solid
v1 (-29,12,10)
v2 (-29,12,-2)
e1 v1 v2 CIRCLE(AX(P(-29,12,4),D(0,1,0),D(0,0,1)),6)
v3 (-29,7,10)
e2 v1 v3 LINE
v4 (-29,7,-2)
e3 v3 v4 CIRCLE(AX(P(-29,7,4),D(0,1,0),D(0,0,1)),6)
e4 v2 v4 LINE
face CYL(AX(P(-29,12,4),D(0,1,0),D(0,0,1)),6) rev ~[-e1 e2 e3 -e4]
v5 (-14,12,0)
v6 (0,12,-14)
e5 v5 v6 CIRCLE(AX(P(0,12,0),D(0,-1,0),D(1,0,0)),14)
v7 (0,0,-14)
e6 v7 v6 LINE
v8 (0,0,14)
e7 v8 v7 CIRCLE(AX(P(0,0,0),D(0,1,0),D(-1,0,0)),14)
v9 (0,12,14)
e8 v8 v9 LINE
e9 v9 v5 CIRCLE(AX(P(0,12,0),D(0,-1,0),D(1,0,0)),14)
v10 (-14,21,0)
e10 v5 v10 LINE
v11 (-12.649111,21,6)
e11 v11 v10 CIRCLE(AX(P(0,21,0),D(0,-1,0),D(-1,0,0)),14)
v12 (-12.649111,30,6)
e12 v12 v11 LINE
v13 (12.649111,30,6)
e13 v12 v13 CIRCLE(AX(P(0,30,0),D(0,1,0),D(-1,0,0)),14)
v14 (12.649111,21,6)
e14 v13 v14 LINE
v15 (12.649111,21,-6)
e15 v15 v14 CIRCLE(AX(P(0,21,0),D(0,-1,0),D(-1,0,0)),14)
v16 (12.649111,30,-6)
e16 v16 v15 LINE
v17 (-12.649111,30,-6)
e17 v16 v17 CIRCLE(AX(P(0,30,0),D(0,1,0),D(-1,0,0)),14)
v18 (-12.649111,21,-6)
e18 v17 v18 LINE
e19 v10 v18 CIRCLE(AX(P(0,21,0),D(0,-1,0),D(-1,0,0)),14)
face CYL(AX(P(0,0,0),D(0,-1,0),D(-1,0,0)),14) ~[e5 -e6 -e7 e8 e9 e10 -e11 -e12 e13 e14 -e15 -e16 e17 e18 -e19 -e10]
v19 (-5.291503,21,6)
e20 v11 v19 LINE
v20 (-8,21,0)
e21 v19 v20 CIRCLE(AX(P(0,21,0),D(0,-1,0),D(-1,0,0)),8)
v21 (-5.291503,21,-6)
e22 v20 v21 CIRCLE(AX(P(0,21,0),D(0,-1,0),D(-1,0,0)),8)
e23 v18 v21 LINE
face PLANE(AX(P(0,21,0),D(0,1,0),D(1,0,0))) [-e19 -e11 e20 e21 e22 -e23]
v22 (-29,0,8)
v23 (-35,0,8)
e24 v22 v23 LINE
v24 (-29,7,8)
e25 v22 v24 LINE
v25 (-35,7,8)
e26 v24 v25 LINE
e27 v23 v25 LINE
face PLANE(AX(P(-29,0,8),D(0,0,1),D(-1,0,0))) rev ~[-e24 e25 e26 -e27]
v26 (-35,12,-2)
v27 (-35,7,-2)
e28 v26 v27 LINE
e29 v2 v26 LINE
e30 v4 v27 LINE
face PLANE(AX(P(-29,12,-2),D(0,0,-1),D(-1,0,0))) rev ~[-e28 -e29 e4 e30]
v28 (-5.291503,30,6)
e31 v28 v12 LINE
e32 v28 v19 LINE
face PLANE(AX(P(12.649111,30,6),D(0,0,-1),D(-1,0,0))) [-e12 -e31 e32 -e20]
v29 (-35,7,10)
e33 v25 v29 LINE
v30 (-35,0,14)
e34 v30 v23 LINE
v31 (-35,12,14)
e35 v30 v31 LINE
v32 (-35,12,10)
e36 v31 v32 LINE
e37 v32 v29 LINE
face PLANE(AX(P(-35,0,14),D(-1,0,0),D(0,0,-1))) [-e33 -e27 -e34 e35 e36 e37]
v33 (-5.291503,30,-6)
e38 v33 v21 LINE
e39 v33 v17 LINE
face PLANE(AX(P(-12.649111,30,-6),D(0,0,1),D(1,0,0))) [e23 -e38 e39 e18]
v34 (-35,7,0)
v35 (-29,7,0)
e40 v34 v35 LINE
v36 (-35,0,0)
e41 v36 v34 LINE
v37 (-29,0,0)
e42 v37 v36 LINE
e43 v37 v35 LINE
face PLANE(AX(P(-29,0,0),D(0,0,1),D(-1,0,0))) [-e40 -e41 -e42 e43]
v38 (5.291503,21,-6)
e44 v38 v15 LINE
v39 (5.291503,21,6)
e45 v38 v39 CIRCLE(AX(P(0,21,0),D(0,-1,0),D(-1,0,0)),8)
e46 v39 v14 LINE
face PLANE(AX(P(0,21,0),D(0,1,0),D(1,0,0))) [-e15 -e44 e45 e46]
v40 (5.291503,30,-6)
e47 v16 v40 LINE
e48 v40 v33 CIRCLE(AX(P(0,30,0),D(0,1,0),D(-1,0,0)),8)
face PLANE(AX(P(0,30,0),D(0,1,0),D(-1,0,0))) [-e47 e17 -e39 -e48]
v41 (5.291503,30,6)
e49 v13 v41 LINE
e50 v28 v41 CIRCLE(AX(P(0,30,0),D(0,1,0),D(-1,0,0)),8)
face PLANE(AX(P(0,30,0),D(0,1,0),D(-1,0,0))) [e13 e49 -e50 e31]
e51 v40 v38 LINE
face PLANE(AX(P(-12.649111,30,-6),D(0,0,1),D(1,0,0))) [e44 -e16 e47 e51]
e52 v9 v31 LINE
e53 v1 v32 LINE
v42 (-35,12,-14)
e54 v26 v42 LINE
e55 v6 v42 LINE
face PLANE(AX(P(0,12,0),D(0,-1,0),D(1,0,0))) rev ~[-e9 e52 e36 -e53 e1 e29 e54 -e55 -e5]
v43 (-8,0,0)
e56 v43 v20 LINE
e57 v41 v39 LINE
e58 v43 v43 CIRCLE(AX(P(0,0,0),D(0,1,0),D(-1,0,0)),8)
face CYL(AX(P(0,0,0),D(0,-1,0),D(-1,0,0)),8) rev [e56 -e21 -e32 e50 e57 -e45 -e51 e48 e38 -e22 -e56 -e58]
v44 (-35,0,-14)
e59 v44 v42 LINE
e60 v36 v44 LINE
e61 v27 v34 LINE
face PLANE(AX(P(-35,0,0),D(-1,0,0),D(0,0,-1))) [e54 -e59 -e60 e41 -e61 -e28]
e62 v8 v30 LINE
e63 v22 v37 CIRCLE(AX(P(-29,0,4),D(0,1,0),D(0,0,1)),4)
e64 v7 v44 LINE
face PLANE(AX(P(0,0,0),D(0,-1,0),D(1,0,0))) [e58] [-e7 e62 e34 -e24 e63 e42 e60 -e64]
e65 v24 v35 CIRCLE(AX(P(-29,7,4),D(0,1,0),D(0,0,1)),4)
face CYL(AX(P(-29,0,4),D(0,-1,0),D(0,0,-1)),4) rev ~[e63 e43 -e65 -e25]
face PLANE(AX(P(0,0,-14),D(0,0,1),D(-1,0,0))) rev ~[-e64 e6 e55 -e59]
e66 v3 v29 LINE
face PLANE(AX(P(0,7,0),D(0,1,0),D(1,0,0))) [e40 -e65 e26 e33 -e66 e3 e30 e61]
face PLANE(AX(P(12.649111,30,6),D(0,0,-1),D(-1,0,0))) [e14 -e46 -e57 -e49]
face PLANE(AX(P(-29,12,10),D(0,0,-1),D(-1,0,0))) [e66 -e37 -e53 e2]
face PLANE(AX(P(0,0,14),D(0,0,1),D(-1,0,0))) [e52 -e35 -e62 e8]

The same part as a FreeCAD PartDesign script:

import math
import FreeCAD as App
import Part
import Sketcher

V = App.Vector


def add_polygon(sketch, points):
    """Adds a closed chain of lines whose ends are joined by coincident constraints."""
    first, n = sketch.GeometryCount, len(points)
    for a, b in zip(points, points[1:] + points[:1]):
        sketch.addGeometry(Part.LineSegment(App.Vector(*a, 0), App.Vector(*b, 0)), False)
    for i in range(n):
        sketch.addConstraint(Sketcher.Constraint("Coincident", first + i, 2, first + (i + 1) % n, 1))

doc = App.newDocument("Part")
params = doc.addObject("Spreadsheet::Sheet", "Params")
for row, (alias, value) in enumerate([
    ("sketch1_diameter", "28 mm"),
    ("sketch1_diameter2", "16 mm"),
    ("pad1_length", "30 mm"),
    ("sketch2_height", "12 mm"),
    ("pocket1_length", "9 mm"),
    ("sketch3_radius", "4 mm"),
    ("sketch3_width", "35 mm"),
    ("sketch3_width2", "6 mm"),
    ("pad2_length", "12 mm"),
    ("sketch4_radius", "6 mm"),
    ("sketch4_radius2", "4 mm"),
    ("sketch4_width", "6 mm"),
    ("pocket2_length", "5 mm"),
], start=1):
    params.set(f"A{row}", alias)
    params.set(f"B{row}", "=" + value)
    params.setAlias(f"B{row}", alias)

body = doc.addObject("PartDesign::Body", "Body")

# Sketch on XZ plane
sketch1 = body.newObject("Sketcher::SketchObject", "Sketch")
sketch1.AttachmentSupport = (doc.getObject("XZ_Plane"), [""])
sketch1.MapMode = "FlatFace"
sketch1.addGeometry(Part.Circle(V(0, 0, 0), V(0, 0, 1), 14), False)
sketch1.addGeometry(Part.Circle(V(0, 0, 0), V(0, 0, 1), 8), False)
sketch1.addConstraint(Sketcher.Constraint("Coincident", 0, 3, -1, 1))
sketch1.addConstraint(Sketcher.Constraint("Coincident", 1, 3, -1, 1))
sketch1.addConstraint(Sketcher.Constraint("Diameter", 0, 28.0))
sketch1.addConstraint(Sketcher.Constraint("Diameter", 1, 16.0))
sketch1.setExpression("Constraints[2]", "Params.sketch1_diameter")
sketch1.setExpression("Constraints[3]", "Params.sketch1_diameter2")
pad1 = body.newObject("PartDesign::Pad", "Pad")
pad1.Profile = sketch1
pad1.setExpression("Length", "Params.pad1_length")
pad1.Reversed = True

# Sketch on XZ plane
sketch2 = body.newObject("Sketcher::SketchObject", "Sketch001")
sketch2.AttachmentSupport = (doc.getObject("XZ_Plane"), [""])
sketch2.MapMode = "FlatFace"
sketch2.AttachmentOffset = App.Placement(V(0, 0, -30), App.Rotation())
add_polygon(sketch2, [(18.1173, 6), (18.1173, -6), (-18.1173, -6), (-18.1173, 6)])  # lines 0-3
sketch2.addConstraint(Sketcher.Constraint("Vertical", 0))
sketch2.addConstraint(Sketcher.Constraint("Horizontal", 1))
sketch2.addConstraint(Sketcher.Constraint("Vertical", 2))
sketch2.addConstraint(Sketcher.Constraint("Horizontal", 3))
sketch2.addConstraint(Sketcher.Constraint("Symmetric", 0, 2, 2, 2, -1, 1))
sketch2.addConstraint(Sketcher.Constraint("DistanceY", 0, 2, 0, 1, 12.0))
sketch2.addConstraint(Sketcher.Constraint("DistanceX", 1, 2, 1, 1, 36.2346))
sketch2.setExpression("Constraints[9]", "Params.sketch2_height")
pocket1 = body.newObject("PartDesign::Pocket", "Pocket")
pocket1.Profile = sketch2
pocket1.setExpression("Length", "Params.pocket1_length")
pocket1.Reversed = True

# Sketch on XZ plane
sketch3 = body.newObject("Sketcher::SketchObject", "Sketch002")
sketch3.AttachmentSupport = (doc.getObject("XZ_Plane"), [""])
sketch3.MapMode = "FlatFace"
sketch3.addGeometry(Part.ArcOfCircle(Part.Circle(V(0, 0, 0), V(0, 0, 1), 14), math.radians(90), math.radians(270)), False)
sketch3.addGeometry(Part.LineSegment(V(0, 14, 0), V(-35, 14, 0)), False)
sketch3.addGeometry(Part.LineSegment(V(-35, 14, 0), V(-35, 8, 0)), False)
sketch3.addGeometry(Part.LineSegment(V(-35, 8, 0), V(-29, 8, 0)), False)
sketch3.addGeometry(Part.ArcOfCircle(Part.Circle(V(-29, 4, 0), V(0, 0, 1), 4), math.radians(-90), math.radians(90)), False)
sketch3.addGeometry(Part.LineSegment(V(-29, 0, 0), V(-35, 0, 0)), False)
sketch3.addGeometry(Part.LineSegment(V(-35, 0, 0), V(-35, -14, 0)), False)
sketch3.addGeometry(Part.LineSegment(V(-35, -14, 0), V(0, -14, 0)), False)
sketch3.addConstraint(Sketcher.Constraint("Tangent", 0, 1, 1, 1))
sketch3.addConstraint(Sketcher.Constraint("Coincident", 1, 2, 2, 1))
sketch3.addConstraint(Sketcher.Constraint("Coincident", 2, 2, 3, 1))
sketch3.addConstraint(Sketcher.Constraint("Tangent", 3, 2, 4, 2))
sketch3.addConstraint(Sketcher.Constraint("Tangent", 4, 1, 5, 1))
sketch3.addConstraint(Sketcher.Constraint("Coincident", 5, 2, 6, 1))
sketch3.addConstraint(Sketcher.Constraint("Coincident", 6, 2, 7, 1))
sketch3.addConstraint(Sketcher.Constraint("Tangent", 7, 2, 0, 2))
sketch3.addConstraint(Sketcher.Constraint("Horizontal", 1))
sketch3.addConstraint(Sketcher.Constraint("Vertical", 2))
sketch3.addConstraint(Sketcher.Constraint("Horizontal", 3))
sketch3.addConstraint(Sketcher.Constraint("Horizontal", 5))
sketch3.addConstraint(Sketcher.Constraint("Vertical", 6))
sketch3.addConstraint(Sketcher.Constraint("Horizontal", 7))
sketch3.addConstraint(Sketcher.Constraint("Coincident", 0, 3, -1, 1))
sketch3.addConstraint(Sketcher.Constraint("PointOnObject", 4, 1, -1))
sketch3.addConstraint(Sketcher.Constraint("Vertical", 2, 2, 5, 2))
sketch3.addConstraint(Sketcher.Constraint("Equal", 5, 2))
sketch3.addConstraint(Sketcher.Constraint("Radius", 4, 4.0))
sketch3.addConstraint(Sketcher.Constraint("DistanceX", 1, 2, 1, 1, 35.0))
sketch3.addConstraint(Sketcher.Constraint("DistanceX", 3, 1, 3, 2, 6.0))
sketch3.setExpression("Constraints[18]", "Params.sketch3_radius")
sketch3.setExpression("Constraints[19]", "Params.sketch3_width")
sketch3.setExpression("Constraints[20]", "Params.sketch3_width2")
pad2 = body.newObject("PartDesign::Pad", "Pad001")
pad2.Profile = sketch3
pad2.setExpression("Length", "Params.pad2_length")
pad2.Reversed = True

# Sketch on XZ plane
sketch4 = body.newObject("Sketcher::SketchObject", "Sketch003")
sketch4.AttachmentSupport = (doc.getObject("XZ_Plane"), [""])
sketch4.MapMode = "FlatFace"
sketch4.AttachmentOffset = App.Placement(V(0, 0, -12), App.Rotation())
sketch4.addGeometry(Part.LineSegment(V(-29, -2, 0), V(-35, -2, 0)), False)
sketch4.addGeometry(Part.LineSegment(V(-35, -2, 0), V(-35, 0, 0)), False)
sketch4.addGeometry(Part.LineSegment(V(-35, 0, 0), V(-29, 0, 0)), False)
sketch4.addGeometry(Part.ArcOfCircle(Part.Circle(V(-29, 4, 0), V(0, 0, 1), 4), math.radians(-90), math.radians(90)), False)
sketch4.addGeometry(Part.LineSegment(V(-29, 8, 0), V(-35, 8, 0)), False)
sketch4.addGeometry(Part.LineSegment(V(-35, 8, 0), V(-35, 10, 0)), False)
sketch4.addGeometry(Part.LineSegment(V(-35, 10, 0), V(-29, 10, 0)), False)
sketch4.addGeometry(Part.ArcOfCircle(Part.Circle(V(-29, 4, 0), V(0, 0, 1), 6), math.radians(-90), math.radians(90)), False)
sketch4.addConstraint(Sketcher.Constraint("Coincident", 0, 2, 1, 1))
sketch4.addConstraint(Sketcher.Constraint("Coincident", 1, 2, 2, 1))
sketch4.addConstraint(Sketcher.Constraint("Tangent", 2, 2, 3, 1))
sketch4.addConstraint(Sketcher.Constraint("Tangent", 3, 2, 4, 1))
sketch4.addConstraint(Sketcher.Constraint("Coincident", 4, 2, 5, 1))
sketch4.addConstraint(Sketcher.Constraint("Coincident", 5, 2, 6, 1))
sketch4.addConstraint(Sketcher.Constraint("Tangent", 6, 2, 7, 2))
sketch4.addConstraint(Sketcher.Constraint("Tangent", 7, 1, 0, 1))
sketch4.addConstraint(Sketcher.Constraint("Horizontal", 0))
sketch4.addConstraint(Sketcher.Constraint("Vertical", 1))
sketch4.addConstraint(Sketcher.Constraint("Horizontal", 2))
sketch4.addConstraint(Sketcher.Constraint("Horizontal", 4))
sketch4.addConstraint(Sketcher.Constraint("Vertical", 5))
sketch4.addConstraint(Sketcher.Constraint("Horizontal", 6))
sketch4.addConstraint(Sketcher.Constraint("Coincident", 7, 3, 3, 3))
sketch4.addConstraint(Sketcher.Constraint("PointOnObject", 1, 2, -1))
sketch4.addConstraint(Sketcher.Constraint("Vertical", 1, 2, 4, 2))
sketch4.addConstraint(Sketcher.Constraint("Radius", 7, 6.0))
sketch4.addConstraint(Sketcher.Constraint("Radius", 3, 4.0))
sketch4.addConstraint(Sketcher.Constraint("DistanceX", 0, 2, 0, 1, 6.0))
sketch4.addConstraint(Sketcher.Constraint("DistanceX", 3, 3, -1, 1, 29.0))
sketch4.setExpression("Constraints[17]", "Params.sketch4_radius")
sketch4.setExpression("Constraints[18]", "Params.sketch4_radius2")
sketch4.setExpression("Constraints[19]", "Params.sketch4_width")
pocket2 = body.newObject("PartDesign::Pocket", "Pocket001")
pocket2.Profile = sketch4
pocket2.setExpression("Length", "Params.pocket2_length")
pocket2.Reversed = True

doc.recompute()
